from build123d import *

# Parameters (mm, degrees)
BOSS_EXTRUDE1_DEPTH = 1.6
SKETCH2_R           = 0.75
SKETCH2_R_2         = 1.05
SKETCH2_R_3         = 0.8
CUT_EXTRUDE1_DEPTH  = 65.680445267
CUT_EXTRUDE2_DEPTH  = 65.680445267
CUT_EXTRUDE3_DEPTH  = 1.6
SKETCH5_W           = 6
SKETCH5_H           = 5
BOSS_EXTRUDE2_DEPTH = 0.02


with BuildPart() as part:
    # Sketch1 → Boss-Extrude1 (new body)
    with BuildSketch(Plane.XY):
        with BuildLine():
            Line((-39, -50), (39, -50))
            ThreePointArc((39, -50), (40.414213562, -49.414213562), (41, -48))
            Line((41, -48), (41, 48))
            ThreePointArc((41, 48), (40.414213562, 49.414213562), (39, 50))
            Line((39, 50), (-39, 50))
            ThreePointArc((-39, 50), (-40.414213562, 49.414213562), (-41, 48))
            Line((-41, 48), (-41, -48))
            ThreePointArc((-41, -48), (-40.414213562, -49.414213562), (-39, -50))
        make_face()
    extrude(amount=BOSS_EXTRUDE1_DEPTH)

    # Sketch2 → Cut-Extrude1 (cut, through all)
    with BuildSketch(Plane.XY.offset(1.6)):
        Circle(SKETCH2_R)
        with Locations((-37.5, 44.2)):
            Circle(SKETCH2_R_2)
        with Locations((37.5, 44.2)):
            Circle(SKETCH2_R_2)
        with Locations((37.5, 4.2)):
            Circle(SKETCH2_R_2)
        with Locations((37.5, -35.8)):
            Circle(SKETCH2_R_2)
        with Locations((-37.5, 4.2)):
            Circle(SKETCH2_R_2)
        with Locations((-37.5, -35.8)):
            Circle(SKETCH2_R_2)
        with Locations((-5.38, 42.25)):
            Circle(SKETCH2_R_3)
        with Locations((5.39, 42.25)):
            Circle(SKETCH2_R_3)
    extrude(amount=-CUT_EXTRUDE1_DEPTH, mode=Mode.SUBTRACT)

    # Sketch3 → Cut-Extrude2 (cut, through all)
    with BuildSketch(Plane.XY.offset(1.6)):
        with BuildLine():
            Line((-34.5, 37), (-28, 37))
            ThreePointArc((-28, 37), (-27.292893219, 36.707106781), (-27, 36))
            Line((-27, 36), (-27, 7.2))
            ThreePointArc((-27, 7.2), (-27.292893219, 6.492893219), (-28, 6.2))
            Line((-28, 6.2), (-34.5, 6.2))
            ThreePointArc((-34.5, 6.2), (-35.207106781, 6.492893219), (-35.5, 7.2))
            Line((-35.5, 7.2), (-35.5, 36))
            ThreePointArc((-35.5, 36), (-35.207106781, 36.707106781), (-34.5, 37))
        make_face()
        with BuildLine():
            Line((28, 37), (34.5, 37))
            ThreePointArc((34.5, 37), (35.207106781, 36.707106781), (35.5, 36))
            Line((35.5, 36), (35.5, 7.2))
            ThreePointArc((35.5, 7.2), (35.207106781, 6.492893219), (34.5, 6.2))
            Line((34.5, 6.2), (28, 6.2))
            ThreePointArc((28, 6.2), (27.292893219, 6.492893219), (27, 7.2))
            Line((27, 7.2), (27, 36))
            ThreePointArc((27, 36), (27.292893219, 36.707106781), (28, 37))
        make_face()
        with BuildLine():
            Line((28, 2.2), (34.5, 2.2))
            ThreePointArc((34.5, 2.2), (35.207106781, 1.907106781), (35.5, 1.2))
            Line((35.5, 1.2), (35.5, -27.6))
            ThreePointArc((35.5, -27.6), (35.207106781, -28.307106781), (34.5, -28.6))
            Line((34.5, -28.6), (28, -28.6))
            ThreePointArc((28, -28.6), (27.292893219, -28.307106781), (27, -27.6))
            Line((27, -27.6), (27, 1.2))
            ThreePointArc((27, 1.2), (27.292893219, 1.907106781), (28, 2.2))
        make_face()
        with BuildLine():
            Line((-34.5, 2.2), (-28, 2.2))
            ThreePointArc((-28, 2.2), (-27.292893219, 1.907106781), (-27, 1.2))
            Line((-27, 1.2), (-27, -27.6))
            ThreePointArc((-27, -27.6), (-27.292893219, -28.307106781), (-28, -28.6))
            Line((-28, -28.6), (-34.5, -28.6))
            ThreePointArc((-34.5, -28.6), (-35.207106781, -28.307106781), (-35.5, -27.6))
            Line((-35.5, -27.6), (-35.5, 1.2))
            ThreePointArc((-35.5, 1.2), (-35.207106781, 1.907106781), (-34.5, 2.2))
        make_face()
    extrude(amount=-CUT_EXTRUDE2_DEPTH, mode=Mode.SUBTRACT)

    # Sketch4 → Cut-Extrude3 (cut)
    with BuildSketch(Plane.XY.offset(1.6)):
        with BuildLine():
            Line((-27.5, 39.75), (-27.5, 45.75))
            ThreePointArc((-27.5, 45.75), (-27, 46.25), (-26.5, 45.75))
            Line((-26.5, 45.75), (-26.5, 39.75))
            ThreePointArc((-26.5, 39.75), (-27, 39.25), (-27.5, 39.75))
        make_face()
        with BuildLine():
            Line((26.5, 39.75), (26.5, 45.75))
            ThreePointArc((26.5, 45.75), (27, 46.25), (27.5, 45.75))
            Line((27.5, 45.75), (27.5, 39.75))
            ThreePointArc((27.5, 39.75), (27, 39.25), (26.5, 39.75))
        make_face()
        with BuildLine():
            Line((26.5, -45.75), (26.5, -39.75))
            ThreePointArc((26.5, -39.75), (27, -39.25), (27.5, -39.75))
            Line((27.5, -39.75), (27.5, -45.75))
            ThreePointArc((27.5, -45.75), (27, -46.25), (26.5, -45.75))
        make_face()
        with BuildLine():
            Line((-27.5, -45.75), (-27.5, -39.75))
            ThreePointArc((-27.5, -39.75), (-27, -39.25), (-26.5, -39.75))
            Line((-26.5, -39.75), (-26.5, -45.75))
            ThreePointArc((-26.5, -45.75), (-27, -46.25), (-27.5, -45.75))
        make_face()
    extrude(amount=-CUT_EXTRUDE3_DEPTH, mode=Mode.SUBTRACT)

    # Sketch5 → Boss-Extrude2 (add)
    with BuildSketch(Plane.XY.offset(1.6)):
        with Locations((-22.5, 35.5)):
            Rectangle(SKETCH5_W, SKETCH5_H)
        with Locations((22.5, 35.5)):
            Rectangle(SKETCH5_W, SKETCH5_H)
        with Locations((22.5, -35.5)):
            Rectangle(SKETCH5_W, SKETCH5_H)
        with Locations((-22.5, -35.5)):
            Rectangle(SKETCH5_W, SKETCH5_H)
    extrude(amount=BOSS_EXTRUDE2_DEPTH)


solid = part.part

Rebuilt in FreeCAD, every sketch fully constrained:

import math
import FreeCAD as App
import Part
import Sketcher

V = App.Vector

doc = App.newDocument("Part")
body = doc.addObject("PartDesign::Body", "Body")

# Sketch on XY plane
sketch1 = body.newObject("Sketcher::SketchObject", "Sketch")
sketch1.AttachmentSupport = (doc.getObject("XY_Plane"), [""])
sketch1.MapMode = "FlatFace"
sketch1.addGeometry([
    Part.LineSegment(V(-39, -50, 0), V(39, -50, 0)),  # 0
    Part.ArcOfCircle(Part.Circle(V(39, -48, 0), V(0, 0, 1), 2), math.radians(-90), math.radians(0)),  # 1
    Part.LineSegment(V(41, -48, 0), V(41, 48, 0)),  # 2
    Part.ArcOfCircle(Part.Circle(V(39, 48, 0), V(0, 0, 1), 2), math.radians(0), math.radians(90)),  # 3
    Part.LineSegment(V(39, 50, 0), V(-39, 50, 0)),  # 4
    Part.ArcOfCircle(Part.Circle(V(-39, 48, 0), V(0, 0, 1), 2), math.radians(90), math.radians(180)),  # 5
    Part.LineSegment(V(-41, 48, 0), V(-41, -48, 0)),  # 6
    Part.ArcOfCircle(Part.Circle(V(-39, -48, 0), V(0, 0, 1), 2), math.radians(-180), math.radians(-90)),  # 7
], False)
sketch1.addConstraint([
    Sketcher.Constraint("Tangent", 0, 2, 1, 1),
    Sketcher.Constraint("Tangent", 1, 2, 2, 1),
    Sketcher.Constraint("Tangent", 2, 2, 3, 1),
    Sketcher.Constraint("Tangent", 3, 2, 4, 1),
    Sketcher.Constraint("Tangent", 4, 2, 5, 1),
    Sketcher.Constraint("Tangent", 5, 2, 6, 1),
    Sketcher.Constraint("Tangent", 6, 2, 7, 1),
    Sketcher.Constraint("Tangent", 7, 2, 0, 1),
    Sketcher.Constraint("Horizontal", 0),
    Sketcher.Constraint("Vertical", 2),
    Sketcher.Constraint("Horizontal", 4),
    Sketcher.Constraint("Vertical", 6),
    Sketcher.Constraint("Equal", 1, 3),
    Sketcher.Constraint("Equal", 3, 5),
    Sketcher.Constraint("Equal", 5, 7),
    Sketcher.Constraint("Symmetric", 1, 3, 5, 3, -1, 1),
    Sketcher.Constraint("Radius", 1, 2.0),
    Sketcher.Constraint("DistanceX", 0, 1, 0, 2, 78.0),
    Sketcher.Constraint("DistanceY", 2, 1, 2, 2, 96.0),
])
pad1 = body.newObject("PartDesign::Pad", "Pad")
pad1.Profile = sketch1
pad1.Length = 1.6

# Sketch on XY plane
sketch2 = body.newObject("Sketcher::SketchObject", "Sketch001")
sketch2.AttachmentSupport = (doc.getObject("XY_Plane"), [""])
sketch2.MapMode = "FlatFace"
sketch2.AttachmentOffset = App.Placement(V(0, 0, 1.6), App.Rotation())
sketch2.addGeometry([
    Part.Circle(V(0, 0, 0), V(0, 0, 1), 0.8),  # 0
    Part.Circle(V(-37.5, 44.2, 0), V(0, 0, 1), 1.1),  # 1
    Part.Circle(V(37.5, 44.2, 0), V(0, 0, 1), 1.1),  # 2
    Part.Circle(V(37.5, 4.2, 0), V(0, 0, 1), 1.1),  # 3
    Part.Circle(V(37.5, -35.8, 0), V(0, 0, 1), 1.1),  # 4
    Part.Circle(V(-37.5, 4.2, 0), V(0, 0, 1), 1.1),  # 5
    Part.Circle(V(-37.5, -35.8, 0), V(0, 0, 1), 1.1),  # 6
    Part.Circle(V(-5.4, 42.2, 0), V(0, 0, 1), 0.8),  # 7
    Part.Circle(V(5.4, 42.2, 0), V(0, 0, 1), 0.8),  # 8
], False)
sketch2.addConstraint([
    Sketcher.Constraint("Coincident", 0, 3, -1, 1),
    Sketcher.Constraint("Equal", 1, 2),
    Sketcher.Constraint("Equal", 2, 3),
    Sketcher.Constraint("Equal", 3, 4),
    Sketcher.Constraint("Equal", 4, 5),
    Sketcher.Constraint("Equal", 5, 6),
    Sketcher.Constraint("Equal", 7, 8),
    Sketcher.Constraint("Symmetric", 1, 3, 2, 3, -2),
    Sketcher.Constraint("Symmetric", 3, 3, 5, 3, -2),
    Sketcher.Constraint("Symmetric", 4, 3, 6, 3, -2),
    Sketcher.Constraint("Horizontal", 7, 3, 8, 3),
    Sketcher.Constraint("Vertical", 2, 3, 3, 3),
    Sketcher.Constraint("Vertical", 3, 3, 4, 3),
    Sketcher.Constraint("Diameter", 0, 1.5),
    Sketcher.Constraint("Diameter", 1, 2.1),
    Sketcher.Constraint("Diameter", 7, 1.6),
    Sketcher.Constraint("DistanceX", 1, 3, 2, 3, 75.0),
    Sketcher.Constraint("DistanceY", 3, 3, 2, 3, 40.0),
    Sketcher.Constraint("DistanceY", 4, 3, 3, 3, 40.0),
    Sketcher.Constraint("DistanceY", -1, 1, 1, 3, 44.2),
    Sketcher.Constraint("DistanceX", 7, 3, -1, 1, 5.38),
    Sketcher.Constraint("DistanceY", -1, 1, 7, 3, 42.25),
    Sketcher.Constraint("DistanceX", -1, 1, 8, 3, 5.39),
])
pocket1 = body.newObject("PartDesign::Pocket", "Pocket")
pocket1.Profile = sketch2
pocket1.Type = "ThroughAll"

# Sketch on XY plane
sketch3 = body.newObject("Sketcher::SketchObject", "Sketch002")
sketch3.AttachmentSupport = (doc.getObject("XY_Plane"), [""])
sketch3.MapMode = "FlatFace"
sketch3.AttachmentOffset = App.Placement(V(0, 0, 1.6), App.Rotation())
sketch3.addGeometry([
    Part.LineSegment(V(-28, 37, 0), V(-34.5, 37, 0)),  # 0
    Part.ArcOfCircle(Part.Circle(V(-34.5, 36, 0), V(0, 0, 1), 1), math.radians(90), math.radians(180)),  # 1
    Part.LineSegment(V(-35.5, 36, 0), V(-35.5, 7.2, 0)),  # 2
    Part.ArcOfCircle(Part.Circle(V(-34.5, 7.2, 0), V(0, 0, 1), 1), math.radians(-180), math.radians(-90)),  # 3
    Part.LineSegment(V(-34.5, 6.2, 0), V(-28, 6.2, 0)),  # 4
    Part.ArcOfCircle(Part.Circle(V(-28, 7.2, 0), V(0, 0, 1), 1), math.radians(-90), math.radians(0)),  # 5
    Part.LineSegment(V(-27, 7.2, 0), V(-27, 36, 0)),  # 6
    Part.ArcOfCircle(Part.Circle(V(-28, 36, 0), V(0, 0, 1), 1), math.radians(0), math.radians(90)),  # 7
    Part.LineSegment(V(34.5, 37, 0), V(28, 37, 0)),  # 8
    Part.ArcOfCircle(Part.Circle(V(28, 36, 0), V(0, 0, 1), 1), math.radians(90), math.radians(180)),  # 9
    Part.LineSegment(V(27, 36, 0), V(27, 7.2, 0)),  # 10
    Part.ArcOfCircle(Part.Circle(V(28, 7.2, 0), V(0, 0, 1), 1), math.radians(-180), math.radians(-90)),  # 11
    Part.LineSegment(V(28, 6.2, 0), V(34.5, 6.2, 0)),  # 12
    Part.ArcOfCircle(Part.Circle(V(34.5, 7.2, 0), V(0, 0, 1), 1), math.radians(-90), math.radians(0)),  # 13
    Part.LineSegment(V(35.5, 7.2, 0), V(35.5, 36, 0)),  # 14
    Part.ArcOfCircle(Part.Circle(V(34.5, 36, 0), V(0, 0, 1), 1), math.radians(0), math.radians(90)),  # 15
    Part.LineSegment(V(34.5, 2.2, 0), V(28, 2.2, 0)),  # 16
    Part.ArcOfCircle(Part.Circle(V(28, 1.2, 0), V(0, 0, 1), 1), math.radians(90), math.radians(180)),  # 17
    Part.LineSegment(V(27, 1.2, 0), V(27, -27.6, 0)),  # 18
    Part.ArcOfCircle(Part.Circle(V(28, -27.6, 0), V(0, 0, 1), 1), math.radians(-180), math.radians(-90)),  # 19
    Part.LineSegment(V(28, -28.6, 0), V(34.5, -28.6, 0)),  # 20
    Part.ArcOfCircle(Part.Circle(V(34.5, -27.6, 0), V(0, 0, 1), 1), math.radians(-90), math.radians(0)),  # 21
    Part.LineSegment(V(35.5, -27.6, 0), V(35.5, 1.2, 0)),  # 22
    Part.ArcOfCircle(Part.Circle(V(34.5, 1.2, 0), V(0, 0, 1), 1), math.radians(0), math.radians(90)),  # 23
    Part.LineSegment(V(-28, 2.2, 0), V(-34.5, 2.2, 0)),  # 24
    Part.ArcOfCircle(Part.Circle(V(-34.5, 1.2, 0), V(0, 0, 1), 1), math.radians(90), math.radians(180)),  # 25
    Part.LineSegment(V(-35.5, 1.2, 0), V(-35.5, -27.6, 0)),  # 26
    Part.ArcOfCircle(Part.Circle(V(-34.5, -27.6, 0), V(0, 0, 1), 1), math.radians(-180), math.radians(-90)),  # 27
    Part.LineSegment(V(-34.5, -28.6, 0), V(-28, -28.6, 0)),  # 28
    Part.ArcOfCircle(Part.Circle(V(-28, -27.6, 0), V(0, 0, 1), 1), math.radians(-90), math.radians(0)),  # 29
    Part.LineSegment(V(-27, -27.6, 0), V(-27, 1.2, 0)),  # 30
    Part.ArcOfCircle(Part.Circle(V(-28, 1.2, 0), V(0, 0, 1), 1), math.radians(0), math.radians(90)),  # 31
], False)
sketch3.addConstraint([
    Sketcher.Constraint("Tangent", 0, 2, 1, 1),
    Sketcher.Constraint("Tangent", 1, 2, 2, 1),
    Sketcher.Constraint("Tangent", 2, 2, 3, 1),
    Sketcher.Constraint("Tangent", 3, 2, 4, 1),
    Sketcher.Constraint("Tangent", 4, 2, 5, 1),
    Sketcher.Constraint("Tangent", 5, 2, 6, 1),
    Sketcher.Constraint("Tangent", 6, 2, 7, 1),
    Sketcher.Constraint("Tangent", 7, 2, 0, 1),
    Sketcher.Constraint("Tangent", 8, 2, 9, 1),
    Sketcher.Constraint("Tangent", 9, 2, 10, 1),
    Sketcher.Constraint("Tangent", 10, 2, 11, 1),
    Sketcher.Constraint("Tangent", 11, 2, 12, 1),
    Sketcher.Constraint("Tangent", 12, 2, 13, 1),
    Sketcher.Constraint("Tangent", 13, 2, 14, 1),
    Sketcher.Constraint("Tangent", 14, 2, 15, 1),
    Sketcher.Constraint("Tangent", 15, 2, 8, 1),
    Sketcher.Constraint("Tangent", 16, 2, 17, 1),
    Sketcher.Constraint("Tangent", 17, 2, 18, 1),
    Sketcher.Constraint("Tangent", 18, 2, 19, 1),
    Sketcher.Constraint("Tangent", 19, 2, 20, 1),
    Sketcher.Constraint("Tangent", 20, 2, 21, 1),
    Sketcher.Constraint("Tangent", 21, 2, 22, 1),
    Sketcher.Constraint("Tangent", 22, 2, 23, 1),
    Sketcher.Constraint("Tangent", 23, 2, 16, 1),
    Sketcher.Constraint("Tangent", 24, 2, 25, 1),
    Sketcher.Constraint("Tangent", 25, 2, 26, 1),
    Sketcher.Constraint("Tangent", 26, 2, 27, 1),
    Sketcher.Constraint("Tangent", 27, 2, 28, 1),
    Sketcher.Constraint("Tangent", 28, 2, 29, 1),
    Sketcher.Constraint("Tangent", 29, 2, 30, 1),
    Sketcher.Constraint("Tangent", 30, 2, 31, 1),
    Sketcher.Constraint("Tangent", 31, 2, 24, 1),
    Sketcher.Constraint("Horizontal", 0),
    Sketcher.Constraint("Vertical", 2),
    Sketcher.Constraint("Horizontal", 4),
    Sketcher.Constraint("Vertical", 6),
    Sketcher.Constraint("Horizontal", 8),
    Sketcher.Constraint("Vertical", 10),
    Sketcher.Constraint("Horizontal", 12),
    Sketcher.Constraint("Vertical", 14),
    Sketcher.Constraint("Horizontal", 16),
    Sketcher.Constraint("Vertical", 18),
    Sketcher.Constraint("Horizontal", 20),
    Sketcher.Constraint("Vertical", 22),
    Sketcher.Constraint("Horizontal", 24),
    Sketcher.Constraint("Vertical", 26),
    Sketcher.Constraint("Horizontal", 28),
    Sketcher.Constraint("Vertical", 30),
    Sketcher.Constraint("Equal", 1, 3),
    Sketcher.Constraint("Equal", 3, 5),
    Sketcher.Constraint("Equal", 5, 7),
    Sketcher.Constraint("Equal", 7, 9),
    Sketcher.Constraint("Equal", 9, 11),
    Sketcher.Constraint("Equal", 11, 13),
    Sketcher.Constraint("Equal", 13, 15),
    Sketcher.Constraint("Equal", 15, 17),
    Sketcher.Constraint("Equal", 17, 19),
    Sketcher.Constraint("Equal", 19, 21),
    Sketcher.Constraint("Equal", 21, 23),
    Sketcher.Constraint("Equal", 23, 25),
    Sketcher.Constraint("Equal", 25, 27),
    Sketcher.Constraint("Equal", 27, 29),
    Sketcher.Constraint("Equal", 29, 31),
    Sketcher.Constraint("Symmetric", 7, 3, 9, 3, -2),
    Sketcher.Constraint("Symmetric", 3, 3, 13, 3, -2),
    Sketcher.Constraint("Symmetric", 23, 3, 25, 3, -2),
    Sketcher.Constraint("Symmetric", 19, 3, 29, 3, -2),
    Sketcher.Constraint("Vertical", 11, 3, 17, 3),
    Sketcher.Constraint("Vertical", 15, 3, 21, 3),
    Sketcher.Constraint("Equal", 14, 18),
    Sketcher.Constraint("Radius", 1, 1.0),
    Sketcher.Constraint("DistanceX", 0, 2, 0, 1, 6.5),
    Sketcher.Constraint("DistanceY", 2, 2, 2, 1, 28.8),
    Sketcher.Constraint("DistanceY", -1, 1, 1, 3, 36.0),
    Sketcher.Constraint("DistanceX", 5, 3, -1, 1, 28.0),
    Sketcher.Constraint("DistanceY", 17, 3, 11, 3, 6.0),
])
pocket2 = body.newObject("PartDesign::Pocket", "Pocket001")
pocket2.Profile = sketch3
pocket2.Type = "ThroughAll"

# Sketch on XY plane
sketch4 = body.newObject("Sketcher::SketchObject", "Sketch003")
sketch4.AttachmentSupport = (doc.getObject("XY_Plane"), [""])
sketch4.MapMode = "FlatFace"
sketch4.AttachmentOffset = App.Placement(V(0, 0, 1.6), App.Rotation())
sketch4.addGeometry([
    Part.LineSegment(V(-27.5, 45.8, 0), V(-27.5, 39.8, 0)),  # 0
    Part.ArcOfCircle(Part.Circle(V(-27, 39.8, 0), V(0, 0, 1), 0.5), math.radians(180), math.radians(360)),  # 1
    Part.LineSegment(V(-26.5, 39.8, 0), V(-26.5, 45.8, 0)),  # 2
    Part.ArcOfCircle(Part.Circle(V(-27, 45.8, 0), V(0, 0, 1), 0.5), math.radians(0), math.radians(180)),  # 3
    Part.LineSegment(V(26.5, 45.8, 0), V(26.5, 39.8, 0)),  # 4
    Part.ArcOfCircle(Part.Circle(V(27, 39.8, 0), V(0, 0, 1), 0.5), math.radians(180), math.radians(360)),  # 5
    Part.LineSegment(V(27.5, 39.8, 0), V(27.5, 45.8, 0)),  # 6
    Part.ArcOfCircle(Part.Circle(V(27, 45.8, 0), V(0, 0, 1), 0.5), math.radians(0), math.radians(180)),  # 7
    Part.LineSegment(V(26.5, -39.8, 0), V(26.5, -45.8, 0)),  # 8
    Part.ArcOfCircle(Part.Circle(V(27, -45.8, 0), V(0, 0, 1), 0.5), math.radians(180), math.radians(360)),  # 9
    Part.LineSegment(V(27.5, -45.8, 0), V(27.5, -39.8, 0)),  # 10
    Part.ArcOfCircle(Part.Circle(V(27, -39.8, 0), V(0, 0, 1), 0.5), math.radians(0), math.radians(180)),  # 11
    Part.LineSegment(V(-27.5, -39.8, 0), V(-27.5, -45.8, 0)),  # 12
    Part.ArcOfCircle(Part.Circle(V(-27, -45.8, 0), V(0, 0, 1), 0.5), math.radians(180), math.radians(360)),  # 13
    Part.LineSegment(V(-26.5, -45.8, 0), V(-26.5, -39.8, 0)),  # 14
    Part.ArcOfCircle(Part.Circle(V(-27, -39.8, 0), V(0, 0, 1), 0.5), math.radians(0), math.radians(180)),  # 15
], False)
sketch4.addConstraint([
    Sketcher.Constraint("Tangent", 0, 2, 1, 1),
    Sketcher.Constraint("Tangent", 1, 2, 2, 1),
    Sketcher.Constraint("Tangent", 2, 2, 3, 1),
    Sketcher.Constraint("Tangent", 3, 2, 0, 1),
    Sketcher.Constraint("Tangent", 4, 2, 5, 1),
    Sketcher.Constraint("Tangent", 5, 2, 6, 1),
    Sketcher.Constraint("Tangent", 6, 2, 7, 1),
    Sketcher.Constraint("Tangent", 7, 2, 4, 1),
    Sketcher.Constraint("Tangent", 8, 2, 9, 1),
    Sketcher.Constraint("Tangent", 9, 2, 10, 1),
    Sketcher.Constraint("Tangent", 10, 2, 11, 1),
    Sketcher.Constraint("Tangent", 11, 2, 8, 1),
    Sketcher.Constraint("Tangent", 12, 2, 13, 1),
    Sketcher.Constraint("Tangent", 13, 2, 14, 1),
    Sketcher.Constraint("Tangent", 14, 2, 15, 1),
    Sketcher.Constraint("Tangent", 15, 2, 12, 1),
    Sketcher.Constraint("Vertical", 0),
    Sketcher.Constraint("Vertical", 2),
    Sketcher.Constraint("Vertical", 4),
    Sketcher.Constraint("Vertical", 6),
    Sketcher.Constraint("Vertical", 8),
    Sketcher.Constraint("Vertical", 10),
    Sketcher.Constraint("Vertical", 12),
    Sketcher.Constraint("Vertical", 14),
    Sketcher.Constraint("Equal", 3, 5),
    Sketcher.Constraint("Equal", 7, 9),
    Sketcher.Constraint("Equal", 11, 13),
    Sketcher.Constraint("Symmetric", 3, 3, 9, 3, -1, 1),
    Sketcher.Constraint("Symmetric", 7, 3, 13, 3, -1, 1),
    Sketcher.Constraint("Symmetric", 1, 3, 5, 3, -2),
    Sketcher.Constraint("Horizontal", 3, 3, 7, 3),
    Sketcher.Constraint("Horizontal", 11, 3, 15, 3),
    Sketcher.Constraint("Equal", 6, 8),
    Sketcher.Constraint("Radius", 1, 0.5),
    Sketcher.Constraint("DistanceY", 0, 2, 0, 1, 6.0),
    Sketcher.Constraint("DistanceX", 1, 3, -1, 1, 27.0),
    Sketcher.Constraint("DistanceY", 9, 3, 5, 3, 85.5),
])
pocket3 = body.newObject("PartDesign::Pocket", "Pocket002")
pocket3.Profile = sketch4
pocket3.Length = 1.6

# Sketch on XY plane
sketch5 = body.newObject("Sketcher::SketchObject", "Sketch004")
sketch5.AttachmentSupport = (doc.getObject("XY_Plane"), [""])
sketch5.MapMode = "FlatFace"
sketch5.AttachmentOffset = App.Placement(V(0, 0, 1.6), App.Rotation())
sketch5.addGeometry([
    Part.LineSegment(V(-26, 38, 0), V(-26, 33, 0)),  # 0
    Part.LineSegment(V(-26, 33, 0), V(-20, 33, 0)),  # 1
    Part.LineSegment(V(-20, 33, 0), V(-20, 38, 0)),  # 2
    Part.LineSegment(V(-20, 38, 0), V(-26, 38, 0)),  # 3
    Part.LineSegment(V(20, 38, 0), V(20, 33, 0)),  # 4
    Part.LineSegment(V(20, 33, 0), V(26, 33, 0)),  # 5
    Part.LineSegment(V(26, 33, 0), V(26, 38, 0)),  # 6
    Part.LineSegment(V(26, 38, 0), V(20, 38, 0)),  # 7
    Part.LineSegment(V(20, -33, 0), V(20, -38, 0)),  # 8
    Part.LineSegment(V(20, -38, 0), V(26, -38, 0)),  # 9
    Part.LineSegment(V(26, -38, 0), V(26, -33, 0)),  # 10
    Part.LineSegment(V(26, -33, 0), V(20, -33, 0)),  # 11
    Part.LineSegment(V(-26, -33, 0), V(-26, -38, 0)),  # 12
    Part.LineSegment(V(-26, -38, 0), V(-20, -38, 0)),  # 13
    Part.LineSegment(V(-20, -38, 0), V(-20, -33, 0)),  # 14
    Part.LineSegment(V(-20, -33, 0), V(-26, -33, 0)),  # 15
], False)
sketch5.addConstraint([
    Sketcher.Constraint("Coincident", 0, 2, 1, 1),
    Sketcher.Constraint("Coincident", 1, 2, 2, 1),
    Sketcher.Constraint("Coincident", 2, 2, 3, 1),
    Sketcher.Constraint("Coincident", 3, 2, 0, 1),
    Sketcher.Constraint("Coincident", 4, 2, 5, 1),
    Sketcher.Constraint("Coincident", 5, 2, 6, 1),
    Sketcher.Constraint("Coincident", 6, 2, 7, 1),
    Sketcher.Constraint("Coincident", 7, 2, 4, 1),
    Sketcher.Constraint("Coincident", 8, 2, 9, 1),
    Sketcher.Constraint("Coincident", 9, 2, 10, 1),
    Sketcher.Constraint("Coincident", 10, 2, 11, 1),
    Sketcher.Constraint("Coincident", 11, 2, 8, 1),
    Sketcher.Constraint("Coincident", 12, 2, 13, 1),
    Sketcher.Constraint("Coincident", 13, 2, 14, 1),
    Sketcher.Constraint("Coincident", 14, 2, 15, 1),
    Sketcher.Constraint("Coincident", 15, 2, 12, 1),
    Sketcher.Constraint("Vertical", 0),
    Sketcher.Constraint("Horizontal", 1),
    Sketcher.Constraint("Vertical", 2),
    Sketcher.Constraint("Horizontal", 3),
    Sketcher.Constraint("Vertical", 4),
    Sketcher.Constraint("Horizontal", 5),
    Sketcher.Constraint("Vertical", 6),
    Sketcher.Constraint("Horizontal", 7),
    Sketcher.Constraint("Vertical", 8),
    Sketcher.Constraint("Horizontal", 9),
    Sketcher.Constraint("Vertical", 10),
    Sketcher.Constraint("Horizontal", 11),
    Sketcher.Constraint("Vertical", 12),
    Sketcher.Constraint("Horizontal", 13),
    Sketcher.Constraint("Vertical", 14),
    Sketcher.Constraint("Horizontal", 15),
    Sketcher.Constraint("Symmetric", 2, 2, 8, 2, -1, 1),
    Sketcher.Constraint("Symmetric", 0, 2, 10, 2, -1, 1),
    Sketcher.Constraint("Symmetric", 6, 2, 12, 2, -1, 1),
    Sketcher.Constraint("Symmetric", 4, 2, 14, 2, -1, 1),
    Sketcher.Constraint("Symmetric", 1, 2, 4, 2, -2),
    Sketcher.Constraint("Symmetric", 3, 2, 6, 2, -2),
    Sketcher.Constraint("DistanceX", 1, 1, 1, 2, 6.0),
    Sketcher.Constraint("DistanceY", 0, 2, 0, 1, 5.0),
    Sketcher.Constraint("DistanceY", -1, 1, 0, 2, 33.0),
    Sketcher.Constraint("DistanceX", 1, 2, 4, 2, 39.0),
])
pad2 = body.newObject("PartDesign::Pad", "Pad001")
pad2.Profile = sketch5
pad2.Length = 0.02

doc.recompute()
